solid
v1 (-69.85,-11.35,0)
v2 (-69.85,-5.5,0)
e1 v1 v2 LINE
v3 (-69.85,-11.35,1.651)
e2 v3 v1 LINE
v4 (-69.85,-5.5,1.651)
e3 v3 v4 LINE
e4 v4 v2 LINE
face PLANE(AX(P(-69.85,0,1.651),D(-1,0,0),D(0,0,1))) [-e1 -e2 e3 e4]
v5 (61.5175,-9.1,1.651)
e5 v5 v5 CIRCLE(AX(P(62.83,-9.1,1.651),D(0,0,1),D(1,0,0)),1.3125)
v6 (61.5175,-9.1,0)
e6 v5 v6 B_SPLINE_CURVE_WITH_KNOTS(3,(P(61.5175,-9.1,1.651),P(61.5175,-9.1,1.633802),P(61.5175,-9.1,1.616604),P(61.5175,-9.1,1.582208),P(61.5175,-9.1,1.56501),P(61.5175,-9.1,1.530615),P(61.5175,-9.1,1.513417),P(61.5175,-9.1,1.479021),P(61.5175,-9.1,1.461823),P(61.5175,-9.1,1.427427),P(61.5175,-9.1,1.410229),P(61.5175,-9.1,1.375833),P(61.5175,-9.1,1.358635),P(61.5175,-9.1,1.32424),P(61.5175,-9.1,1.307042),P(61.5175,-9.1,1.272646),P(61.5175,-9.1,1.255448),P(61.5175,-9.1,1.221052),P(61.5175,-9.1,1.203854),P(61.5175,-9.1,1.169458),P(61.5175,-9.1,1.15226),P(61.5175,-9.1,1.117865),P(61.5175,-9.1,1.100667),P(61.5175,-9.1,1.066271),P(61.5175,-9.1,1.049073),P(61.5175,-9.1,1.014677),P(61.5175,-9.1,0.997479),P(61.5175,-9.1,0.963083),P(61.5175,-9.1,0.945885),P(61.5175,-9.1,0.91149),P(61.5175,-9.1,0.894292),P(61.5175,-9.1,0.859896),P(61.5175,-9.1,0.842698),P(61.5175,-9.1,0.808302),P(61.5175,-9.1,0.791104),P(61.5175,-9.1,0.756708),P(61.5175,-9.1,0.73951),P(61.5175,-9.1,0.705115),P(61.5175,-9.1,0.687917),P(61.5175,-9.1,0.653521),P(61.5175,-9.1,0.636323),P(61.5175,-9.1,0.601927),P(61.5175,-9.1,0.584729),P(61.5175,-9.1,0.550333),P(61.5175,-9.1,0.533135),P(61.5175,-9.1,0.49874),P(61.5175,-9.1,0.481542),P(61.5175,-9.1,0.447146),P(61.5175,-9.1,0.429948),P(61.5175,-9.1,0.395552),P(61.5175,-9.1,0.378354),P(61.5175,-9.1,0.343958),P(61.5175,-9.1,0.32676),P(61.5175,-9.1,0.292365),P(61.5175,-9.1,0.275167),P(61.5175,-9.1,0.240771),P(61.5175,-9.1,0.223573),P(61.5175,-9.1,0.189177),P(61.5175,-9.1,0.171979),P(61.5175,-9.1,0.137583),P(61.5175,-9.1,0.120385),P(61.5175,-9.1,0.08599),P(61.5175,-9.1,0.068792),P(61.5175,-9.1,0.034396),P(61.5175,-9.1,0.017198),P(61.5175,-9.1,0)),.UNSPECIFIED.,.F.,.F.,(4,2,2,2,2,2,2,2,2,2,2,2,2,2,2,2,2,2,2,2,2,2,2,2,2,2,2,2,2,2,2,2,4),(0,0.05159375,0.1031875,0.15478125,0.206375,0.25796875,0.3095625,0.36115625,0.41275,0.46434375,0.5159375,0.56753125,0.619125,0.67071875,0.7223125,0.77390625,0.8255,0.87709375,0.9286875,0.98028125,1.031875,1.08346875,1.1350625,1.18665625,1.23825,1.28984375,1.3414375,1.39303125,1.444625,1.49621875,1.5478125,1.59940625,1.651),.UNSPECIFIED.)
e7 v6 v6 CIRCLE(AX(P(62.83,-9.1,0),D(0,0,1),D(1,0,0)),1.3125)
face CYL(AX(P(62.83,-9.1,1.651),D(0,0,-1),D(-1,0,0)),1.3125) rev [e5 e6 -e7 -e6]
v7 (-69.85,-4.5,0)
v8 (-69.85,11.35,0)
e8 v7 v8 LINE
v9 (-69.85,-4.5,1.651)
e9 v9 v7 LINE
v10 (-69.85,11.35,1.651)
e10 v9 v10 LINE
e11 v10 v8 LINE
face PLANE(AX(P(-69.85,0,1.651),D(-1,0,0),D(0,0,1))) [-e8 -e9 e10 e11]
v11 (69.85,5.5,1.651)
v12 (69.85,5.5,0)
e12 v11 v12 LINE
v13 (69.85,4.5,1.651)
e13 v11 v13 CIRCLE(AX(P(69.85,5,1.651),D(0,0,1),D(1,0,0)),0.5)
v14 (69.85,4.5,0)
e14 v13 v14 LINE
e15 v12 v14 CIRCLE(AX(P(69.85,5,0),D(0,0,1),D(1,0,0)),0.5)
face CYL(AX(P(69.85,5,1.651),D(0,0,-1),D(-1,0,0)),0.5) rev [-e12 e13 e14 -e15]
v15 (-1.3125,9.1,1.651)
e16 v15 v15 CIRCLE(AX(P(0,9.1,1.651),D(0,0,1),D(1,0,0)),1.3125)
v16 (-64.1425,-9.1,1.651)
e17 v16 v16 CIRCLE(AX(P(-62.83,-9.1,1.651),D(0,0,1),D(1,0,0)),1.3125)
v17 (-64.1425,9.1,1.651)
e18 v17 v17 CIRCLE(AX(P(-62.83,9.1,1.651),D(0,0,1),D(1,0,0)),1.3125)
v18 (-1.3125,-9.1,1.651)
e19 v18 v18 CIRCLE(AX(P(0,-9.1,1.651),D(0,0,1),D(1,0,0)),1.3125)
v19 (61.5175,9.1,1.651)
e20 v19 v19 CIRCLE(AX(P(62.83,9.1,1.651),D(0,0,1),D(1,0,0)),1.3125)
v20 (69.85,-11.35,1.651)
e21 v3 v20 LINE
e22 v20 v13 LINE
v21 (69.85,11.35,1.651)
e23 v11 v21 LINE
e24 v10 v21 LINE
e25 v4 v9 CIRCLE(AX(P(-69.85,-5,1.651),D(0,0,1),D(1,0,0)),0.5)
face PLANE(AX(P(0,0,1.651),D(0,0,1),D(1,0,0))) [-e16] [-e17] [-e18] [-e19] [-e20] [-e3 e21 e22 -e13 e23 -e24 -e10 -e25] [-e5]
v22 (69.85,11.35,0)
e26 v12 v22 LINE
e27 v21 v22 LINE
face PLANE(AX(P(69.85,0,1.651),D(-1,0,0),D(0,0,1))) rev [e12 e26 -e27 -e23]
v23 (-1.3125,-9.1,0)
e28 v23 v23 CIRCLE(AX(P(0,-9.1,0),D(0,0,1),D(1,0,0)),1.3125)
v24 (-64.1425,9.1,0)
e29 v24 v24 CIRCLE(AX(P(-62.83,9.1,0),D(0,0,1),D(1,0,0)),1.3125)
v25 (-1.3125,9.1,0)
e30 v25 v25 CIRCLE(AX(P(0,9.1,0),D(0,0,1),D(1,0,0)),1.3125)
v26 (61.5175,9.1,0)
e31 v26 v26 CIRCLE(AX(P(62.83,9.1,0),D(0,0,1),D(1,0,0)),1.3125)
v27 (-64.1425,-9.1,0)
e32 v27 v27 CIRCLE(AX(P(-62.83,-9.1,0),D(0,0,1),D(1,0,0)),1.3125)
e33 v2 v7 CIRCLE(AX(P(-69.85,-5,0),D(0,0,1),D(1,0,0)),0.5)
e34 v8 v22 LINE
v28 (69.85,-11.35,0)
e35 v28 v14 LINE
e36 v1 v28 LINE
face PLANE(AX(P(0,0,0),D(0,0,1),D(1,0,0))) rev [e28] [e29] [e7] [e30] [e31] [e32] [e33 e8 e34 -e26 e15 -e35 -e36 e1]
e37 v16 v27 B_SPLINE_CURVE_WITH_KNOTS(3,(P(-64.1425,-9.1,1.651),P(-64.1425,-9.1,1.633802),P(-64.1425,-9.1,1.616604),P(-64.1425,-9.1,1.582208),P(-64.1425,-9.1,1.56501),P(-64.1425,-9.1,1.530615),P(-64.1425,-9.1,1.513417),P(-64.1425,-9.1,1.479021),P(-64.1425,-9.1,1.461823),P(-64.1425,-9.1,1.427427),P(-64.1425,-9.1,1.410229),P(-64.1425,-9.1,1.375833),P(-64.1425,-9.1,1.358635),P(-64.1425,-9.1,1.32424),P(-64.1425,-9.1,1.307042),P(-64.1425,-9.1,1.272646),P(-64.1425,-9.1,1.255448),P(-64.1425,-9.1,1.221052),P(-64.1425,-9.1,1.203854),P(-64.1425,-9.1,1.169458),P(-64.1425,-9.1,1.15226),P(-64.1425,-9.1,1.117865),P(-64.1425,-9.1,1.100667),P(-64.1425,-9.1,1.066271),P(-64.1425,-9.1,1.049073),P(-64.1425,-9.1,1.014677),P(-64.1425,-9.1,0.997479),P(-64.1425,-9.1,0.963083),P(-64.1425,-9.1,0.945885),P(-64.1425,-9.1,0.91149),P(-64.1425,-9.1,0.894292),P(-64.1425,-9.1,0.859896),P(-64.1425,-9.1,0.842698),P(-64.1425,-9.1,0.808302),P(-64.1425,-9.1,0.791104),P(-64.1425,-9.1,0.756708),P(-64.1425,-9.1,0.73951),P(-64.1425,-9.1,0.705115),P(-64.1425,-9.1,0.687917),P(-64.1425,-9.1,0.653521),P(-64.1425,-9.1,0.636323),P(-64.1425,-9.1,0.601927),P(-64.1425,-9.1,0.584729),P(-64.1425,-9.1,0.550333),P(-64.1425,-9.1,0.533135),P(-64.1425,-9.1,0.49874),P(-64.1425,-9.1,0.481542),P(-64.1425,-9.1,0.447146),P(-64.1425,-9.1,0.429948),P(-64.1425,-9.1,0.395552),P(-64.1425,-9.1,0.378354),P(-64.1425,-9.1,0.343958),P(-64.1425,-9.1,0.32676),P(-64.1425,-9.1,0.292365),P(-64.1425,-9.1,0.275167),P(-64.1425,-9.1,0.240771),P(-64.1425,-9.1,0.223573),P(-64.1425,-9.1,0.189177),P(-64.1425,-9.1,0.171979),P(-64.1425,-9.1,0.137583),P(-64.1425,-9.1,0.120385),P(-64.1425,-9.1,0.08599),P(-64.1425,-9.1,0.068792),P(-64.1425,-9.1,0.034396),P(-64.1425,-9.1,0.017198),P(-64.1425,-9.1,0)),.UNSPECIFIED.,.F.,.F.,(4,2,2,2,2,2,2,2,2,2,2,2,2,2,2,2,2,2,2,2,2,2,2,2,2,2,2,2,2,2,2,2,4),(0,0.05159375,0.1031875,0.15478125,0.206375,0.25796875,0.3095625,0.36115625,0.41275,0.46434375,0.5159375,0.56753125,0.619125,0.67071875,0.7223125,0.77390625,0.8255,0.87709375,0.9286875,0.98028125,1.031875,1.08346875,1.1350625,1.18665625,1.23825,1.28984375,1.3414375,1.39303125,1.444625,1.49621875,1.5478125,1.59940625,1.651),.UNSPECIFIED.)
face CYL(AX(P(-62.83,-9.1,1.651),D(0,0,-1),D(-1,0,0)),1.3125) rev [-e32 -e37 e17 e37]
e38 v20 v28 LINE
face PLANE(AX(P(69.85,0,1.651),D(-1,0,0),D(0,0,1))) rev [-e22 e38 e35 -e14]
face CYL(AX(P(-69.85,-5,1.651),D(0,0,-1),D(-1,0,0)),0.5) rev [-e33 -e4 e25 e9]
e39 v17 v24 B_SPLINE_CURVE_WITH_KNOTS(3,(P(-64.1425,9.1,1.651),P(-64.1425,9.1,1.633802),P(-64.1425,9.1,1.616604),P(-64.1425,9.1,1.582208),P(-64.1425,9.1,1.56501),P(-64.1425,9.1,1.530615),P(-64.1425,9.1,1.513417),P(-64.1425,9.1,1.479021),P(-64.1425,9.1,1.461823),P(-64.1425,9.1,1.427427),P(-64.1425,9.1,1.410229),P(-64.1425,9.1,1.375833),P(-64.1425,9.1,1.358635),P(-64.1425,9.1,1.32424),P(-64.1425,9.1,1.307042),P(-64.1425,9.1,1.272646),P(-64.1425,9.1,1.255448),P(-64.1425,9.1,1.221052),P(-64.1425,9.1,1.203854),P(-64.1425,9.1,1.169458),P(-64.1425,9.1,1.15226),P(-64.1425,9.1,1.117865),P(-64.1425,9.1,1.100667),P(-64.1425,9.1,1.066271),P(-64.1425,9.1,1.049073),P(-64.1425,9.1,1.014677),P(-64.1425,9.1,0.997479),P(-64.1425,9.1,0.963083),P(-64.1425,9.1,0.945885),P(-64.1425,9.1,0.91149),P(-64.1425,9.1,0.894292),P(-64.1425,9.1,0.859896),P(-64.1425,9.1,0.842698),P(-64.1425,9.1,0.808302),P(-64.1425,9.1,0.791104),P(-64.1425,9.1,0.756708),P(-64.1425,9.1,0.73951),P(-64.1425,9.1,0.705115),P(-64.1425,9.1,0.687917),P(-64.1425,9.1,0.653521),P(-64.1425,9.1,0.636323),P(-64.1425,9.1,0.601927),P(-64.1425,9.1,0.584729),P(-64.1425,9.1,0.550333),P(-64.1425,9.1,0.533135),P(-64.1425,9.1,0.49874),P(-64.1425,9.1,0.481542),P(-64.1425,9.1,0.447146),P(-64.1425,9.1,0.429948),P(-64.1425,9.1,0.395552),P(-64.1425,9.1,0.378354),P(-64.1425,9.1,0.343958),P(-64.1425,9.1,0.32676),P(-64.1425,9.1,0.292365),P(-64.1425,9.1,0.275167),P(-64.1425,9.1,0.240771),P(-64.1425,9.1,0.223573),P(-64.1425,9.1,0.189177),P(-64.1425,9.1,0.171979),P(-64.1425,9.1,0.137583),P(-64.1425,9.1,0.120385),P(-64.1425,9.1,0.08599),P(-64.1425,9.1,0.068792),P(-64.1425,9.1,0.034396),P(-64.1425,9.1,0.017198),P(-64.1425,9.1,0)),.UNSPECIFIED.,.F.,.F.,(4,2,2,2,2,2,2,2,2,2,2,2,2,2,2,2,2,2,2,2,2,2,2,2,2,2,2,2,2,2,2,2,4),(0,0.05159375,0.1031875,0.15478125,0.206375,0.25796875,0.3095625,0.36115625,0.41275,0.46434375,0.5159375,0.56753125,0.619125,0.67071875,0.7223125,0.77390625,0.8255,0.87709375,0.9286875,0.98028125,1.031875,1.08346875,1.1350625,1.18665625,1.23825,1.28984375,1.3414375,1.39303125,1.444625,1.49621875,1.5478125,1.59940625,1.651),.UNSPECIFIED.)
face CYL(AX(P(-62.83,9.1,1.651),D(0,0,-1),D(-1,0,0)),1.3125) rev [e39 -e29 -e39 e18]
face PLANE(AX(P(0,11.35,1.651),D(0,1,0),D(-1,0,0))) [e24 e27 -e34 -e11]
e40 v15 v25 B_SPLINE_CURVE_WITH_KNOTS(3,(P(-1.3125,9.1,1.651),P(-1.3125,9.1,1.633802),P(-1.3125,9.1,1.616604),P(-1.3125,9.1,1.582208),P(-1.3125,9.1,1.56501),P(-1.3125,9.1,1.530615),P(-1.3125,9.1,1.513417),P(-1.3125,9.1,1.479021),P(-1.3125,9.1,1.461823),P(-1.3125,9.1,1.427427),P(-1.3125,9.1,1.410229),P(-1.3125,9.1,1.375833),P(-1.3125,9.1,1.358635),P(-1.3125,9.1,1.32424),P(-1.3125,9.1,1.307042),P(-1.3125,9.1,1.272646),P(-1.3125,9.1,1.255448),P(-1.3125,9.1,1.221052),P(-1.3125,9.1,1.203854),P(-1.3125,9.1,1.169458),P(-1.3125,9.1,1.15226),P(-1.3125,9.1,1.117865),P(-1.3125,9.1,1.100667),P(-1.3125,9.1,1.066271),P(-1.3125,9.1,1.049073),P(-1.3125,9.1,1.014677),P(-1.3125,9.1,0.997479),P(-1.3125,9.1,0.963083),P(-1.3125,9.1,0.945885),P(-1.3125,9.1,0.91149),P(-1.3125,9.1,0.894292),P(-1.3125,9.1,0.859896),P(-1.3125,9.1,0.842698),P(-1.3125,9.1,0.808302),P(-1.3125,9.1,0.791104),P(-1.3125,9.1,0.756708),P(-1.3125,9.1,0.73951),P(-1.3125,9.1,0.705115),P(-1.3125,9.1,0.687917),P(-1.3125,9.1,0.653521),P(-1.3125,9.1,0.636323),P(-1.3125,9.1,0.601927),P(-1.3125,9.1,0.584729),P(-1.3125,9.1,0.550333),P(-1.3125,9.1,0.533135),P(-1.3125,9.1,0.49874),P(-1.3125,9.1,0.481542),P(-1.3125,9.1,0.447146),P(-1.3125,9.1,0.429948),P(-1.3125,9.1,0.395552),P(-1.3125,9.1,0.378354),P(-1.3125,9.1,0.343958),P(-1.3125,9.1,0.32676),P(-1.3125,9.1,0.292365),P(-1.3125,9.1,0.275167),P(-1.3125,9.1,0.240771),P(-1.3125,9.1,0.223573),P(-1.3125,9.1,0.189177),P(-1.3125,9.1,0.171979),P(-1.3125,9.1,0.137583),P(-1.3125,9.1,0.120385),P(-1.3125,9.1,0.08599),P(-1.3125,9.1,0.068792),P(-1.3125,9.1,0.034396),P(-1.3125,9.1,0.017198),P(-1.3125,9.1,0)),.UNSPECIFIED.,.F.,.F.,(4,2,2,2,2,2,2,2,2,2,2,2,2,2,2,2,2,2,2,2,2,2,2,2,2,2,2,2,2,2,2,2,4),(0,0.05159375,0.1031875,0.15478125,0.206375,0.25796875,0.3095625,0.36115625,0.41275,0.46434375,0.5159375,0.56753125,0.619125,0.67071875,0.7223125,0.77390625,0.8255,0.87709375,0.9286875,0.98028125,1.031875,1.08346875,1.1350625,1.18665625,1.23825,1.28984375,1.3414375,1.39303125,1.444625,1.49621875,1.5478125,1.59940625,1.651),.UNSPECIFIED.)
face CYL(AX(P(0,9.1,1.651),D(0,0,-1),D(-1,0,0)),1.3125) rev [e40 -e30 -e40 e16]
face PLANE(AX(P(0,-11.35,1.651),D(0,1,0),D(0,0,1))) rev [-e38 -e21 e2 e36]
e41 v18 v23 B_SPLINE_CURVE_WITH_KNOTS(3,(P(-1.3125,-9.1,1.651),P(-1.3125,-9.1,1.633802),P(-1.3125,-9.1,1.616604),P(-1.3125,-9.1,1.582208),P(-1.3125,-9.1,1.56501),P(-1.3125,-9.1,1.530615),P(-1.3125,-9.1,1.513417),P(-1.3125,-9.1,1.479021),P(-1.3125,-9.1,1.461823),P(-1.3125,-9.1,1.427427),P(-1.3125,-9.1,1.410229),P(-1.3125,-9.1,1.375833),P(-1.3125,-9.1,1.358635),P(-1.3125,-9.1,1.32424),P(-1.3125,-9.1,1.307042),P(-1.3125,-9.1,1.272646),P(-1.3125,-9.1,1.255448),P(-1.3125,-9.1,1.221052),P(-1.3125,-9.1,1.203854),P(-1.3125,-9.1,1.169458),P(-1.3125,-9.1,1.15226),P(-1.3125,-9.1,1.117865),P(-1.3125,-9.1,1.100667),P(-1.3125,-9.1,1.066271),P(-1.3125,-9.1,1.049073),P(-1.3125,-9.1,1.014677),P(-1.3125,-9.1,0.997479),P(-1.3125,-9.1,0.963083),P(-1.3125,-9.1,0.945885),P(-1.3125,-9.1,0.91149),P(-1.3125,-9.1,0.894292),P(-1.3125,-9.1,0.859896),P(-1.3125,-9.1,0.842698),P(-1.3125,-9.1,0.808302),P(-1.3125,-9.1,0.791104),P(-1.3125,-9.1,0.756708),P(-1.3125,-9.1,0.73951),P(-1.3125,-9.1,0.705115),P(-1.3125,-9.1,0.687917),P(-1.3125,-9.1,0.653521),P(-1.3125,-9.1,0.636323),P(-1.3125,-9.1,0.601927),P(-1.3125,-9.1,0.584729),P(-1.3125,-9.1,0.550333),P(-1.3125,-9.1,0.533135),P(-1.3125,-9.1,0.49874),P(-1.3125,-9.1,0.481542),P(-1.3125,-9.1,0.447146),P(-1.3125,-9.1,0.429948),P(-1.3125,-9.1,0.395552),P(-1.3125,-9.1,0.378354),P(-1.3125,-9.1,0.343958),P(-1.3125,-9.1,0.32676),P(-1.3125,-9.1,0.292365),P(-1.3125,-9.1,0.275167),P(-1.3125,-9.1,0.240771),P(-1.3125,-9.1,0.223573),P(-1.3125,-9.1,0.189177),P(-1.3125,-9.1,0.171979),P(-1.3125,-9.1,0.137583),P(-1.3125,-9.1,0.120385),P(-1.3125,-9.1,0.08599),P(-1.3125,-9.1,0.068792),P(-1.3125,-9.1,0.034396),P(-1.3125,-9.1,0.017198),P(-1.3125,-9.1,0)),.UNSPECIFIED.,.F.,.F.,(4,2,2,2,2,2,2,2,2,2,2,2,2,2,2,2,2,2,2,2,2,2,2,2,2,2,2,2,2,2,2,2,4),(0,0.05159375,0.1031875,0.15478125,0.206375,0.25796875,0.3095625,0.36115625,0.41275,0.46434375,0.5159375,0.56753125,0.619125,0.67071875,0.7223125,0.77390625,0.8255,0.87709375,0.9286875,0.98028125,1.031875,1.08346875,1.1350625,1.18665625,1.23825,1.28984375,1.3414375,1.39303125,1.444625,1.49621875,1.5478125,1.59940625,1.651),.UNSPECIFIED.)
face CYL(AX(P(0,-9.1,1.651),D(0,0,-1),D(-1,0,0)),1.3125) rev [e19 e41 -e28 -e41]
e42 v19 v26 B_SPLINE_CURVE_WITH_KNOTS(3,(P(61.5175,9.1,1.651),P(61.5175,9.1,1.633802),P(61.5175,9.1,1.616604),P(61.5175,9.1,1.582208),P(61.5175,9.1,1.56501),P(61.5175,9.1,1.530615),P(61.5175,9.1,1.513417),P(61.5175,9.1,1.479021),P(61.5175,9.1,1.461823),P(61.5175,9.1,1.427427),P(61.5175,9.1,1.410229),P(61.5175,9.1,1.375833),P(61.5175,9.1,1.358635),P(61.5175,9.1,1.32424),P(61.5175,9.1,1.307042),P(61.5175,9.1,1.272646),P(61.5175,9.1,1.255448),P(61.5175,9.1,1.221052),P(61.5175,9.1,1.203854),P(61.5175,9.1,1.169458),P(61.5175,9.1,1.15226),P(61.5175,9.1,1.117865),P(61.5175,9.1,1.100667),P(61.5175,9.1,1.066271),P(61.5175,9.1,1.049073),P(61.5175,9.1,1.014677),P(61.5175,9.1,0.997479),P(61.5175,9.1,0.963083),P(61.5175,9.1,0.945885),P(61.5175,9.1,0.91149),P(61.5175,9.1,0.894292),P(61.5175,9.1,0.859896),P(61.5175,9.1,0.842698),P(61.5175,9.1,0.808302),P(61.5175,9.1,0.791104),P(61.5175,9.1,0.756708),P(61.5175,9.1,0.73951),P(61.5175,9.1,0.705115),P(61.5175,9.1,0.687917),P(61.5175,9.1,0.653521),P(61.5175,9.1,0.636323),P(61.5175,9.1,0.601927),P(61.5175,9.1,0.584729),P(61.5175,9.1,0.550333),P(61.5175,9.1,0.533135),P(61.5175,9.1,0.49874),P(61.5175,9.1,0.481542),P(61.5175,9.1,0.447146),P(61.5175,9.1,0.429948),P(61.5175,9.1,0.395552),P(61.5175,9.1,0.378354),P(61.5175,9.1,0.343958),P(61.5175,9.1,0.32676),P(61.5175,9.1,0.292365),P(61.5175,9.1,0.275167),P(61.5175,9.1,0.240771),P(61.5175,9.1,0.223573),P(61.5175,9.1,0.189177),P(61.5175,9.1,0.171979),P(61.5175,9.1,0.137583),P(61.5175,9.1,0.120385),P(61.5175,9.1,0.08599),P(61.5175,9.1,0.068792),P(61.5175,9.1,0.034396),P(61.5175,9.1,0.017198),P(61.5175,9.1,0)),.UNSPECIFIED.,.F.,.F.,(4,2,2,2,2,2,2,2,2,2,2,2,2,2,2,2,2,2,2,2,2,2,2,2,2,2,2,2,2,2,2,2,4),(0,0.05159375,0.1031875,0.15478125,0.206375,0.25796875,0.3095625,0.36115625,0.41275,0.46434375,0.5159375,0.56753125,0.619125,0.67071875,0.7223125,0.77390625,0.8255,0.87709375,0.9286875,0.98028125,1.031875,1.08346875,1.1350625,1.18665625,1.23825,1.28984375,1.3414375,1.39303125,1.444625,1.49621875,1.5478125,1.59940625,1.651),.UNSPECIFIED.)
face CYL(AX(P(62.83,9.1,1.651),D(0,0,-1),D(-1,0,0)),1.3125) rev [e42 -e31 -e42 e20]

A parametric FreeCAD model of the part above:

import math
import FreeCAD as App
import Part
import Sketcher
from FreeCAD import Vector
Q = App.Units.Quantity

doc = App.newDocument("Part")
body = doc.addObject("PartDesign::Body", "Body")

# Sketch on XY plane
sketch1 = doc.addObject("Sketcher::SketchObject", "Sketch")
body.addObject(sketch1)
sketch1.AttachmentSupport = (doc.XY_Plane, [""])
sketch1.MapMode = "FlatFace"
sketch1.addGeometry([
    Part.LineSegment(Vector(-69.85, -5.5, 0), Vector(-69.85, -11.35, 0)),  # 0
    Part.LineSegment(Vector(-69.85, -11.35, 0), Vector(69.85, -11.35, 0)),  # 1
    Part.LineSegment(Vector(69.85, -11.35, 0), Vector(69.85, 4.5, 0)),  # 2
    Part.ArcOfCircle(Part.Circle(Vector(69.85, 5, 0), Vector(0, 0, 1), 0.5), math.radians(90), math.radians(270)),  # 3
    Part.LineSegment(Vector(69.85, 5.5, 0), Vector(69.85, 11.35, 0)),  # 4
    Part.LineSegment(Vector(69.85, 11.35, 0), Vector(-69.85, 11.35, 0)),  # 5
    Part.LineSegment(Vector(-69.85, 11.35, 0), Vector(-69.85, -4.5, 0)),  # 6
    Part.ArcOfCircle(Part.Circle(Vector(-69.85, -5, 0), Vector(0, 0, 1), 0.5), math.radians(0), math.radians(90)),  # 7
    Part.ArcOfCircle(Part.Circle(Vector(-69.85, -5, 0), Vector(0, 0, 1), 0.5), math.radians(-90), math.radians(0)),  # 8
    Part.Circle(Vector(-62.83, -9.1, 0), Vector(0, 0, 1), 1.31),  # 9
    Part.Circle(Vector(0, -9.1, 0), Vector(0, 0, 1), 1.31),  # 10
    Part.Circle(Vector(62.83, -9.1, 0), Vector(0, 0, 1), 1.31),  # 11
    Part.Circle(Vector(-62.83, 9.1, 0), Vector(0, 0, 1), 1.31),  # 12
    Part.Circle(Vector(0, 9.1, 0), Vector(0, 0, 1), 1.31),  # 13
    Part.Circle(Vector(62.83, 9.1, 0), Vector(0, 0, 1), 1.31),  # 14
], False)
sketch1.addConstraint([
    Sketcher.Constraint("Coincident", 0, 2, 1, 1),
    Sketcher.Constraint("Coincident", 1, 2, 2, 1),
    Sketcher.Constraint("Coincident", 2, 2, 3, 2),
    Sketcher.Constraint("Coincident", 3, 1, 4, 1),
    Sketcher.Constraint("Coincident", 4, 2, 5, 1),
    Sketcher.Constraint("Coincident", 5, 2, 6, 1),
    Sketcher.Constraint("Coincident", 6, 2, 7, 2),
    Sketcher.Constraint("Tangent", 7, 1, 8, 2),
    Sketcher.Constraint("Coincident", 8, 1, 0, 1),
    Sketcher.Constraint("Vertical", 0),
    Sketcher.Constraint("Horizontal", 1),
    Sketcher.Constraint("Vertical", 2),
    Sketcher.Constraint("Vertical", 4),
    Sketcher.Constraint("Horizontal", 5),
    Sketcher.Constraint("Vertical", 6),
    Sketcher.Constraint("Equal", 3, 7),
    Sketcher.Constraint("Equal", 7, 8),
    Sketcher.Constraint("Equal", 9, 10),
    Sketcher.Constraint("Equal", 10, 11),
    Sketcher.Constraint("Equal", 11, 12),
    Sketcher.Constraint("Equal", 12, 13),
    Sketcher.Constraint("Equal", 13, 14),
    Sketcher.Constraint("Symmetric", 3, 3, 7, 3, -1, 1),
    Sketcher.Constraint("Symmetric", 11, 3, 12, 3, -1, 1),
    Sketcher.Constraint("Symmetric", 10, 3, 13, 3, -1, 1),
    Sketcher.Constraint("Symmetric", 9, 3, 14, 3, -1, 1),
    Sketcher.Constraint("Symmetric", 0, 2, 4, 2, -1, 1),
    Sketcher.Constraint("Symmetric", 9, 3, 11, 3, -2),
    Sketcher.Constraint("PointOnObject", 10, 3, -2),
    Sketcher.Constraint("Horizontal", 9, 3, 10, 3),
    Sketcher.Constraint("Horizontal", 8, 3, 7, 1),
    Sketcher.Constraint("Vertical", 8, 3, 0, 2),
    Sketcher.Constraint("Vertical", 3, 3, 1, 2),
    Sketcher.Constraint("Vertical", 0, 2, 5, 2),
    Sketcher.Constraint("DistanceX", 1, 1, 1, 2, Q("5.5 in")),
    Sketcher.Constraint("Diameter", 9, Q("2.625 mm")),
    Sketcher.Constraint("Radius", 3, Q("0.5 mm")),
    Sketcher.Constraint("DistanceY", 0, 2, 8, 3, Q("0.25 in")),
    Sketcher.Constraint("DistanceY", 2, 1, 2, 2, Q("15.85 mm")),
    Sketcher.Constraint("DistanceX", 9, 3, -1, 1, Q("62.83 mm")),
    Sketcher.Constraint("DistanceY", 9, 3, -1, 1, Q("9.1 mm")),
])
pad1 = doc.addObject("PartDesign::Pad", "Pad")
body.addObject(pad1)
pad1.Profile = sketch1
pad1.Length = Q("0.065 in")

doc.recompute()
